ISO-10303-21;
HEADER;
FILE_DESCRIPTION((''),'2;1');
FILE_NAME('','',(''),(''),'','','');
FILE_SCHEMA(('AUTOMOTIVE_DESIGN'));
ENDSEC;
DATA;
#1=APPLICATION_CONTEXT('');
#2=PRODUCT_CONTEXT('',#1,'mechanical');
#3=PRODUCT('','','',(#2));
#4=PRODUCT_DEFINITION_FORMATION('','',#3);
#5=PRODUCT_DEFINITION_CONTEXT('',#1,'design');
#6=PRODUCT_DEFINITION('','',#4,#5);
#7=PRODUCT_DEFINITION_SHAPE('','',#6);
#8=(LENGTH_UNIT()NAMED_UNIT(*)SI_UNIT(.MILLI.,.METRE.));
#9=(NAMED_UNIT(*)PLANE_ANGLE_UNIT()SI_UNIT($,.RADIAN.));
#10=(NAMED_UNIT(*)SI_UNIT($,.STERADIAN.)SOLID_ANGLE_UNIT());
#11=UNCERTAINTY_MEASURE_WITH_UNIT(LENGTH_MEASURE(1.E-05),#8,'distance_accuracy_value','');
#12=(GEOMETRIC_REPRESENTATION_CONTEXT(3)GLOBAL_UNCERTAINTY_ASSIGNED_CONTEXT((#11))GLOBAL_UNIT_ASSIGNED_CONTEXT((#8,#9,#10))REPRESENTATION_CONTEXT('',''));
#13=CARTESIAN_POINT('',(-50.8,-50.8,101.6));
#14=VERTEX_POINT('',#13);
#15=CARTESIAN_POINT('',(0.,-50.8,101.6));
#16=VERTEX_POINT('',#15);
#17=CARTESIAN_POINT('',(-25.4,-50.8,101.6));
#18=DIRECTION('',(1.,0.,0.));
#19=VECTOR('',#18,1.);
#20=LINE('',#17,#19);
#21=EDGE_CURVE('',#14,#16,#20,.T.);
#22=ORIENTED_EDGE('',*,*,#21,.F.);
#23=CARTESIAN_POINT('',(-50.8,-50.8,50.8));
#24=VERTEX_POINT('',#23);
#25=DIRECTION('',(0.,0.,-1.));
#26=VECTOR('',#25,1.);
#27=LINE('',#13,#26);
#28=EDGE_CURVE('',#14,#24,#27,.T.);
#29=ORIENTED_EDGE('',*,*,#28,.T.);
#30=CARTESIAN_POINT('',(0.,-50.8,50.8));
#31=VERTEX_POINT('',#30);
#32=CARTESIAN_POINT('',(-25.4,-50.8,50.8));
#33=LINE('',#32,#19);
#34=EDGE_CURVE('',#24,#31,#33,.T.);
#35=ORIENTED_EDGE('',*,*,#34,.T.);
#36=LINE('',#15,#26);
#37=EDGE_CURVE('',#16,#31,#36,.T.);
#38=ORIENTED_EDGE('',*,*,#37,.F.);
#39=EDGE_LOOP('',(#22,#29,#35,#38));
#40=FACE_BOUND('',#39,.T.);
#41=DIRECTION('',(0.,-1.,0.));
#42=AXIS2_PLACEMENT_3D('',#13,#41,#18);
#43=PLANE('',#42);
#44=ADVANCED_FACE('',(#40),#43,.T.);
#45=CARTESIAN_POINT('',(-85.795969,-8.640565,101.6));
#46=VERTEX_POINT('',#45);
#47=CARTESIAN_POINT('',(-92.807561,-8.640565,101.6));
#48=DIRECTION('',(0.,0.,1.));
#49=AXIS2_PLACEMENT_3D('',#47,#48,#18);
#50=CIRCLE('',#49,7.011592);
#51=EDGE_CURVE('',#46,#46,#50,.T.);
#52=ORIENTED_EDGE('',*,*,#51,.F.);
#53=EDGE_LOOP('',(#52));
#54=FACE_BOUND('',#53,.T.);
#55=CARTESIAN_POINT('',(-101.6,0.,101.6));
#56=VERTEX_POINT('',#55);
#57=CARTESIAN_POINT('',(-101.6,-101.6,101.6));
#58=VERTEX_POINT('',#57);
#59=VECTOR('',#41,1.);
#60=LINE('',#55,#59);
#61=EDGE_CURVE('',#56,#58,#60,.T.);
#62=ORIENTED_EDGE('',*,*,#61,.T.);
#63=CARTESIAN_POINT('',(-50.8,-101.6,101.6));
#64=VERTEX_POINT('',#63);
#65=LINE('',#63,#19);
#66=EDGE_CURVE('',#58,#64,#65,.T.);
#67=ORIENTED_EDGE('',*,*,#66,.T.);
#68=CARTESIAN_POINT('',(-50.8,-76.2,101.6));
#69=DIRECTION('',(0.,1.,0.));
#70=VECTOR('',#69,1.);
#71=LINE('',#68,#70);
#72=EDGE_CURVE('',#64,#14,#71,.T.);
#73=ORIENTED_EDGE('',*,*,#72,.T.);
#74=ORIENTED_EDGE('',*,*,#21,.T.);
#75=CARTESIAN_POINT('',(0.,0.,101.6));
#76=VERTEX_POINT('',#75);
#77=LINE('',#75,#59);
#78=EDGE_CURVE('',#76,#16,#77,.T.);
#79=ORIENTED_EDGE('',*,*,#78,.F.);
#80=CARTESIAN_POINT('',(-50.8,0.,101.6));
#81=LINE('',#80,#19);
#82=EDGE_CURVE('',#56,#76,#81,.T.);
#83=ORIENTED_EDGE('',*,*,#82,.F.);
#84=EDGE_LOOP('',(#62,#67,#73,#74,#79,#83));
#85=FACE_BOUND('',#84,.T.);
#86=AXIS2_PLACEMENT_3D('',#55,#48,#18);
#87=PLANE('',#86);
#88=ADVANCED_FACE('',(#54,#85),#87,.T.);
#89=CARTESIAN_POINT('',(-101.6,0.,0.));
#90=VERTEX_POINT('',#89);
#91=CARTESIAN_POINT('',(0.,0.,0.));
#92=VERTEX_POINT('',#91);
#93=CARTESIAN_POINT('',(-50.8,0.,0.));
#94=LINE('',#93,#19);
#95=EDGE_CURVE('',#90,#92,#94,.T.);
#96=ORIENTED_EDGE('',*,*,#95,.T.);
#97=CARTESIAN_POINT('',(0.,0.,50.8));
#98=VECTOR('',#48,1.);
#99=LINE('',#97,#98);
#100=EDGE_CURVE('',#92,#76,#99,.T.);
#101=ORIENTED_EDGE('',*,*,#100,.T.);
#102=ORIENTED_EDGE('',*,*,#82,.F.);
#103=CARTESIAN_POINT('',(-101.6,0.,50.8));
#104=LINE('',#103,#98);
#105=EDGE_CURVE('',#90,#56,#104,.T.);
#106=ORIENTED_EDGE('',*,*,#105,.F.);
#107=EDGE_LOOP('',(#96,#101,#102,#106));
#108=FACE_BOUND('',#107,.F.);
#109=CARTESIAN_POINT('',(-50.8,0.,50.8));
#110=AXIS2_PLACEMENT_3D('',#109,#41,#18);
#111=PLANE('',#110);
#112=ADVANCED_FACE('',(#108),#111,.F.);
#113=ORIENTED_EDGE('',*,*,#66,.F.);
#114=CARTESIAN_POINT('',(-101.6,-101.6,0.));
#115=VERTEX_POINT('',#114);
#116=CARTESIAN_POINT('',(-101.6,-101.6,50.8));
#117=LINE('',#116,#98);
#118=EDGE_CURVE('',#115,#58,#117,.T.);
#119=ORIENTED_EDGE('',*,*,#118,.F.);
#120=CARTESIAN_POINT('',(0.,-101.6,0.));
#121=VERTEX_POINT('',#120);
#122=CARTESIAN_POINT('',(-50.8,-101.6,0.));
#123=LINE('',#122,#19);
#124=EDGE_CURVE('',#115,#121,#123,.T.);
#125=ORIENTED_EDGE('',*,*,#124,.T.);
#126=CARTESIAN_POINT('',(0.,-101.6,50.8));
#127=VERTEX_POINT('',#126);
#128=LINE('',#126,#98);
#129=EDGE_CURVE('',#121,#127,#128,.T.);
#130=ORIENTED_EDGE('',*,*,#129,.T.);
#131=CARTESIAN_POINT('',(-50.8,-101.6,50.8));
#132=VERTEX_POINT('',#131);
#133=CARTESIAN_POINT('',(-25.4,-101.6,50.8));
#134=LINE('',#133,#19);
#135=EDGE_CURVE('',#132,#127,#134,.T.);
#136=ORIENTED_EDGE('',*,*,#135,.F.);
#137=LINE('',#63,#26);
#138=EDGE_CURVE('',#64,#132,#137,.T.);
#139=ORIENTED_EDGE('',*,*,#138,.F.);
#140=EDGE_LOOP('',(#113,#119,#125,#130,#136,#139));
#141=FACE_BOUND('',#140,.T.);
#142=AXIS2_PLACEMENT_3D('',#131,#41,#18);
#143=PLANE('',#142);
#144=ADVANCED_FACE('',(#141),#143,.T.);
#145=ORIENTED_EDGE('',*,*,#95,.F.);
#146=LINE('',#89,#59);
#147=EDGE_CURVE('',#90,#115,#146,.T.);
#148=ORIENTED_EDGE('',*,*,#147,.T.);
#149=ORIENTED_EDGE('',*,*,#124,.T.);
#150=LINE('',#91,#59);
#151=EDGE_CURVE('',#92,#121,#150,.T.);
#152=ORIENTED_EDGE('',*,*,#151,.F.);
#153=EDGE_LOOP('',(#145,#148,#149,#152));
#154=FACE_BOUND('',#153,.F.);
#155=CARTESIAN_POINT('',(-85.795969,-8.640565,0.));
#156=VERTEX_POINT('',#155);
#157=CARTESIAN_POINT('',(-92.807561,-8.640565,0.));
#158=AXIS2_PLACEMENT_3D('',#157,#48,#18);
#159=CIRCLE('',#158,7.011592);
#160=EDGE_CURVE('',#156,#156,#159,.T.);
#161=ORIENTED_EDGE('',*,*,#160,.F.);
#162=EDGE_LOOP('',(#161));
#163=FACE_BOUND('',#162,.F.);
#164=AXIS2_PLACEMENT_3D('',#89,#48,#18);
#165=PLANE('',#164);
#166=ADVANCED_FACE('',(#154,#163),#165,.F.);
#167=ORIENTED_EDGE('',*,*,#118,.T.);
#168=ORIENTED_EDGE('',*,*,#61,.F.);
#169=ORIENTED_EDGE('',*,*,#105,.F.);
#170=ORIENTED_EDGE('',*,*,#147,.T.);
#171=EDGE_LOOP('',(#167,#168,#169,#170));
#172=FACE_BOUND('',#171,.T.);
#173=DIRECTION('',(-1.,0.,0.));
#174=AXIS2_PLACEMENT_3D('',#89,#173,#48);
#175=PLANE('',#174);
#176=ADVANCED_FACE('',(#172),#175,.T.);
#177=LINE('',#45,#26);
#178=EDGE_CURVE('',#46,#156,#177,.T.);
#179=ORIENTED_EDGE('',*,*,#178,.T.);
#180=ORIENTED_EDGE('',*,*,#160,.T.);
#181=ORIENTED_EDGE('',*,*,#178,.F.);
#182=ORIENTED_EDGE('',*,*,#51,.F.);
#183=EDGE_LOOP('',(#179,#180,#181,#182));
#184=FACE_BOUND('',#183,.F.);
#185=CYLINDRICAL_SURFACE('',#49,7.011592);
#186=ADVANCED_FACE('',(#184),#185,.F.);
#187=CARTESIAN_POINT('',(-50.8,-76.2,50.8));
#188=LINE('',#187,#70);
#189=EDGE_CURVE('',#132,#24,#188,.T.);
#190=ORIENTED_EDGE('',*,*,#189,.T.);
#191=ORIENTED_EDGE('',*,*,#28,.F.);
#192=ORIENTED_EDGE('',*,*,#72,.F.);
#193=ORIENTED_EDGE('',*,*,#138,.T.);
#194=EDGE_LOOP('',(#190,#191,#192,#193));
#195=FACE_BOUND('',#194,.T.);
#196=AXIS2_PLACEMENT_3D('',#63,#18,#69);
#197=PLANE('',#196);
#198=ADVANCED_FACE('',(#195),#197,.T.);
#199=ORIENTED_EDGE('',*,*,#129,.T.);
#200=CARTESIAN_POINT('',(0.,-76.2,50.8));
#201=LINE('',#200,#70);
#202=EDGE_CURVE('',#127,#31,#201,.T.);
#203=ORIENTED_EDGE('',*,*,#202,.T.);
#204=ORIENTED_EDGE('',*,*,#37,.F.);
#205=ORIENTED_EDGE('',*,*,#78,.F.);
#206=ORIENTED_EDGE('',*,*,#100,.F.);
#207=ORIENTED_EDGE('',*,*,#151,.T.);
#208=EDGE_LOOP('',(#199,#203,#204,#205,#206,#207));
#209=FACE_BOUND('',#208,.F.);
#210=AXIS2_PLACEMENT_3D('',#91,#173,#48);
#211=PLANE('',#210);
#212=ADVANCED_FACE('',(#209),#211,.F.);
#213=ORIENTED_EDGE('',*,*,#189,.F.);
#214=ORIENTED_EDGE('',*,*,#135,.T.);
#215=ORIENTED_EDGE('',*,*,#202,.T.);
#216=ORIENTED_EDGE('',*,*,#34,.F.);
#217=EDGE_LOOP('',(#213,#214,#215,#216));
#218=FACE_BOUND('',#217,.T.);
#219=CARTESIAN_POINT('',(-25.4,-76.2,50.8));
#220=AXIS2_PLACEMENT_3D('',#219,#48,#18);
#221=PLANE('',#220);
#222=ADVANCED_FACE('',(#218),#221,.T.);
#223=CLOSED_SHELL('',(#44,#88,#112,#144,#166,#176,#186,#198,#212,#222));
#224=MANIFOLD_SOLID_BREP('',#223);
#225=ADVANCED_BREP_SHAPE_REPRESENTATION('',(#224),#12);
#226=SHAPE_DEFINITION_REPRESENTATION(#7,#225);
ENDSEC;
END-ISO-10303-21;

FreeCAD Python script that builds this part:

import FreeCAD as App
import Part
import Sketcher
from FreeCAD import Vector
Q = App.Units.Quantity


def add_polygon(sketch, points):
    """Adds a closed chain of lines whose ends are joined by coincident constraints."""
    first, n = sketch.GeometryCount, len(points)
    for a, b in zip(points, points[1:] + points[:1]):
        sketch.addGeometry(Part.LineSegment(App.Vector(*a, 0), App.Vector(*b, 0)), False)
    for i in range(n):
        sketch.addConstraint(Sketcher.Constraint("Coincident", first + i, 2, first + (i + 1) % n, 1))

doc = App.newDocument("Part")
body = doc.addObject("PartDesign::Body", "Body")

# Sketch on XZ plane
sketch1 = body.newObject("Sketcher::SketchObject", "Sketch")
sketch1.AttachmentSupport = (doc.getObject("XZ_Plane"), [""])
sketch1.MapMode = "FlatFace"
add_polygon(sketch1, [(-102, 102), (-102, 0), (0, 0), (0, 102)])  # lines 0-3
sketch1.addConstraint([
    Sketcher.Constraint("Vertical", 0),
    Sketcher.Constraint("Horizontal", 1),
    Sketcher.Constraint("Vertical", 2),
    Sketcher.Constraint("Horizontal", 3),
    Sketcher.Constraint("Coincident", 1, 2, -1, 1),
    Sketcher.Constraint("Equal", 3, 0),
    Sketcher.Constraint("DistanceX", 1, 1, 1, 2, Q("4 in")),
])
pad1 = body.newObject("PartDesign::Pad", "Pad")
pad1.Profile = sketch1
pad1.Length = Q("4 in")

# Sketch on XY plane
sketch2 = body.newObject("Sketcher::SketchObject", "Sketch001")
sketch2.AttachmentSupport = (doc.getObject("XY_Plane"), [""])
sketch2.MapMode = "FlatFace"
sketch2.AttachmentOffset = App.Placement(Vector(0, 0, 4 * 25.4), App.Rotation())
sketch2.addGeometry(Part.Circle(Vector(-93, -9, 0), Vector(0, 0, 1), 7), False)
sketch2.addConstraint([
    Sketcher.Constraint("Diameter", 0, 14.023184),
    Sketcher.Constraint("DistanceX", 0, 3, -1, 1, 92.807561),
    Sketcher.Constraint("DistanceY", 0, 3, -1, 1, 8.640565),
])
pocket1 = body.newObject("PartDesign::Pocket", "Pocket")
pocket1.Profile = sketch2
pocket1.Length = Q("4 in")

# Sketch on XY plane
sketch3 = body.newObject("Sketcher::SketchObject", "Sketch002")
sketch3.AttachmentSupport = (doc.getObject("XY_Plane"), [""])
sketch3.MapMode = "FlatFace"
sketch3.AttachmentOffset = App.Placement(Vector(0, 0, 4 * 25.4), App.Rotation())
add_polygon(sketch3, [(-51, -51), (-51, -102), (0, -102), (0, -51)])  # lines 0-3
sketch3.addConstraint([
    Sketcher.Constraint("Vertical", 0),
    Sketcher.Constraint("Horizontal", 1),
    Sketcher.Constraint("Vertical", 2),
    Sketcher.Constraint("Horizontal", 3),
    Sketcher.Constraint("PointOnObject", 1, 2, -2),
    Sketcher.Constraint("Equal", 3, 0),
    Sketcher.Constraint("DistanceX", 1, 1, 1, 2, Q("2 in")),
    Sketcher.Constraint("DistanceY", 0, 2, -1, 1, Q("4 in")),
])
pocket2 = body.newObject("PartDesign::Pocket", "Pocket001")
pocket2.Profile = sketch3
pocket2.Length = Q("2 in")

doc.recompute()
